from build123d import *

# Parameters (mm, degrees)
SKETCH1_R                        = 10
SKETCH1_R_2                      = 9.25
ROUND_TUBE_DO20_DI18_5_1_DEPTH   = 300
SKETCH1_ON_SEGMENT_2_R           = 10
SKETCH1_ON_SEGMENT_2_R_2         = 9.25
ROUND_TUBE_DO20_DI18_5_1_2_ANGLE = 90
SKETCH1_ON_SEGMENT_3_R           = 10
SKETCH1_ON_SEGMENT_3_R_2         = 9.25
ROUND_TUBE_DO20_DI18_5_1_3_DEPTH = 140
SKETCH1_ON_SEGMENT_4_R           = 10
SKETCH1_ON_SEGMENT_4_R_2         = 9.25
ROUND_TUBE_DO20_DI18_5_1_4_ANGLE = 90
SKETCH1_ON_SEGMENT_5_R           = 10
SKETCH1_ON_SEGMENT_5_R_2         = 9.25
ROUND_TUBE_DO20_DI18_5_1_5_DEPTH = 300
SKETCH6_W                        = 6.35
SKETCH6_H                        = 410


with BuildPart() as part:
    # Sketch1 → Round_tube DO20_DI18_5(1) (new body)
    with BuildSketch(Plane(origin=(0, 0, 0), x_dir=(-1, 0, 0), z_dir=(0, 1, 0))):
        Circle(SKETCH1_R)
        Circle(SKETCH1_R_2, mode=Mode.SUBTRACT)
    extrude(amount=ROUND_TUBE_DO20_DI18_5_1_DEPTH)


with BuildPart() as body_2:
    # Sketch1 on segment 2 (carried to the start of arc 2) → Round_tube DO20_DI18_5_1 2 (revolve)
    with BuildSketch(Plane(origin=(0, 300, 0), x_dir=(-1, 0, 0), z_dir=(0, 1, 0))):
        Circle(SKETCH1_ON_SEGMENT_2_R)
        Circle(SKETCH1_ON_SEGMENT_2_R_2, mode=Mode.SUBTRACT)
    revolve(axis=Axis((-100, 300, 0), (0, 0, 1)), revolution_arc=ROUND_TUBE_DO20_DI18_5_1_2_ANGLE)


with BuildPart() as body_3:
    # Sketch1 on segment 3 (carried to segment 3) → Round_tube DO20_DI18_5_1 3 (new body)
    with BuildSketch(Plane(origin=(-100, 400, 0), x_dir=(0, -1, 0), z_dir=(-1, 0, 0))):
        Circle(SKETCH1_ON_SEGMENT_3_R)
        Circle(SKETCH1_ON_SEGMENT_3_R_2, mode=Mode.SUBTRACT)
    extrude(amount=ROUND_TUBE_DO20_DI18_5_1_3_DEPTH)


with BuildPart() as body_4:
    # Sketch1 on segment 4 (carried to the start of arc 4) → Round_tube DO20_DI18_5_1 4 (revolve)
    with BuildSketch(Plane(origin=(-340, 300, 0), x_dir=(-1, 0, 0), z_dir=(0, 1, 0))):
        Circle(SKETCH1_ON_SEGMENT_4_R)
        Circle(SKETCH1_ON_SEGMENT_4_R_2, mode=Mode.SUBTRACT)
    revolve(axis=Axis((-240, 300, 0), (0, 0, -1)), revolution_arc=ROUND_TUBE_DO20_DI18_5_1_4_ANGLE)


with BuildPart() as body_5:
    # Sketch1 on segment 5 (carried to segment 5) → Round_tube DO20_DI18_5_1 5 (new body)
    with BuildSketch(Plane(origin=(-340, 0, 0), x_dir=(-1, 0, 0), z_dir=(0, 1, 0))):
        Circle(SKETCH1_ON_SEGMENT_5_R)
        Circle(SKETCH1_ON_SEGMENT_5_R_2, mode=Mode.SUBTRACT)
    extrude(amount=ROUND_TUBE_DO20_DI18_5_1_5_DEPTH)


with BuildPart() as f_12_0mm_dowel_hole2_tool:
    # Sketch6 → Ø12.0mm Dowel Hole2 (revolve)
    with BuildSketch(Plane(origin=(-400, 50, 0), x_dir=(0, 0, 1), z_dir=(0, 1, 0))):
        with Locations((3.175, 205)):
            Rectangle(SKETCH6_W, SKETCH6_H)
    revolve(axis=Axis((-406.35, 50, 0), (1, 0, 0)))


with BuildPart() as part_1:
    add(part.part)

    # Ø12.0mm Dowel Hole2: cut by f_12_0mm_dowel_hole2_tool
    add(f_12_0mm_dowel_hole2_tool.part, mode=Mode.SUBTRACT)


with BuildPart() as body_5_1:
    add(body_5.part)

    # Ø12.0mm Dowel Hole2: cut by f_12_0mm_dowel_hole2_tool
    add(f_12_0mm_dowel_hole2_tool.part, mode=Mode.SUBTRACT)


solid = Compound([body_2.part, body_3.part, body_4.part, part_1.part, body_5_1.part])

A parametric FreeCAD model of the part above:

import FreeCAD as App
import Part
import Sketcher

V = App.Vector


def add_polygon(sketch, points):
    """Adds a closed chain of lines whose ends are joined by coincident constraints."""
    first, n = sketch.GeometryCount, len(points)
    for a, b in zip(points, points[1:] + points[:1]):
        sketch.addGeometry(Part.LineSegment(App.Vector(*a, 0), App.Vector(*b, 0)), False)
    for i in range(n):
        sketch.addConstraint(Sketcher.Constraint("Coincident", first + i, 2, first + (i + 1) % n, 1))

doc = App.newDocument("Part")
body = doc.addObject("PartDesign::Body", "Body")

# Sketch on XZ plane
sketch1 = body.newObject("Sketcher::SketchObject", "Sketch")
sketch1.AttachmentSupport = (doc.getObject("XZ_Plane"), [""])
sketch1.MapMode = "FlatFace"
sketch1.addGeometry(Part.Circle(V(0, 0, 0), V(0, 0, 1), 10), False)
sketch1.addGeometry(Part.Circle(V(0, 0, 0), V(0, 0, 1), 9.25), False)
sketch1.addConstraint(Sketcher.Constraint("Coincident", 0, 3, -1, 1))
sketch1.addConstraint(Sketcher.Constraint("Coincident", 1, 3, -1, 1))
sketch1.addConstraint(Sketcher.Constraint("Diameter", 0, 20.0))
sketch1.addConstraint(Sketcher.Constraint("Diameter", 1, 18.5))
pad1 = body.newObject("PartDesign::Pad", "Pad")
pad1.Profile = sketch1
pad1.Length = 300
pad1.Reversed = True
body2 = doc.addObject("PartDesign::Body", "Body001")

# Sketch on XZ plane
sketch2 = body2.newObject("Sketcher::SketchObject", "Sketch001")
sketch2.AttachmentSupport = (doc.getObject("XZ_Plane001"), [""])
sketch2.MapMode = "FlatFace"
sketch2.AttachmentOffset = App.Placement(V(0, 0, -300), App.Rotation())
sketch2.addGeometry(Part.Circle(V(0, 0, 0), V(0, 0, 1), 10), False)
sketch2.addGeometry(Part.Circle(V(0, 0, 0), V(0, 0, 1), 9.25), False)
sketch2.addGeometry(Part.LineSegment(V(-100, 0, 0), V(-100, 10, 0)), True)  # axis
sketch2.addConstraint(Sketcher.Constraint("Vertical", 2))
sketch2.addConstraint(Sketcher.Constraint("Coincident", 0, 3, -1, 1))
sketch2.addConstraint(Sketcher.Constraint("Coincident", 1, 3, -1, 1))
sketch2.addConstraint(Sketcher.Constraint("PointOnObject", 2, 1, -1))
sketch2.addConstraint(Sketcher.Constraint("Diameter", 0, 20.0))
sketch2.addConstraint(Sketcher.Constraint("Diameter", 1, 18.5))
sketch2.addConstraint(Sketcher.Constraint("DistanceY", 2, 1, 2, 2, 10.0))
sketch2.addConstraint(Sketcher.Constraint("DistanceX", 2, 1, -1, 1, 100.0))
revolution = body2.newObject("PartDesign::Revolution", "Revolution")
revolution.Profile = sketch2
revolution.ReferenceAxis = (sketch2, ["Axis0"])
revolution.Angle = 90
body3 = doc.addObject("PartDesign::Body", "Body002")

# Sketch on YZ plane
sketch3 = body3.newObject("Sketcher::SketchObject", "Sketch002")
sketch3.AttachmentSupport = (doc.getObject("YZ_Plane002"), [""])
sketch3.MapMode = "FlatFace"
sketch3.AttachmentOffset = App.Placement(V(0, 0, -100), App.Rotation())
sketch3.addGeometry(Part.Circle(V(400, 0, 0), V(0, 0, 1), 10), False)
sketch3.addGeometry(Part.Circle(V(400, 0, 0), V(0, 0, 1), 9.25), False)
sketch3.addConstraint(Sketcher.Constraint("Coincident", 1, 3, 0, 3))
sketch3.addConstraint(Sketcher.Constraint("PointOnObject", 0, 3, -1))
sketch3.addConstraint(Sketcher.Constraint("Diameter", 0, 20.0))
sketch3.addConstraint(Sketcher.Constraint("Diameter", 1, 18.5))
sketch3.addConstraint(Sketcher.Constraint("DistanceX", -1, 1, 0, 3, 400.0))
pad2 = body3.newObject("PartDesign::Pad", "Pad001")
pad2.Profile = sketch3
pad2.Length = 140
pad2.Reversed = True
body4 = doc.addObject("PartDesign::Body", "Body003")

# Sketch on XZ plane
sketch4 = body4.newObject("Sketcher::SketchObject", "Sketch003")
sketch4.AttachmentSupport = (doc.getObject("XZ_Plane003"), [""])
sketch4.MapMode = "FlatFace"
sketch4.AttachmentOffset = App.Placement(V(0, 0, -300), App.Rotation())
sketch4.addGeometry(Part.Circle(V(-340, 0, 0), V(0, 0, 1), 10), False)
sketch4.addGeometry(Part.Circle(V(-340, 0, 0), V(0, 0, 1), 9.25), False)
sketch4.addGeometry(Part.LineSegment(V(-240, 0, 0), V(-240, -10, 0)), True)  # axis
sketch4.addConstraint(Sketcher.Constraint("Vertical", 2))
sketch4.addConstraint(Sketcher.Constraint("Coincident", 1, 3, 0, 3))
sketch4.addConstraint(Sketcher.Constraint("PointOnObject", 0, 3, -1))
sketch4.addConstraint(Sketcher.Constraint("PointOnObject", 2, 1, -1))
sketch4.addConstraint(Sketcher.Constraint("Diameter", 0, 20.0))
sketch4.addConstraint(Sketcher.Constraint("Diameter", 1, 18.5))
sketch4.addConstraint(Sketcher.Constraint("DistanceY", 2, 2, 2, 1, 10.0))
sketch4.addConstraint(Sketcher.Constraint("DistanceX", 0, 3, -1, 1, 340.0))
sketch4.addConstraint(Sketcher.Constraint("DistanceX", 2, 1, -1, 1, 240.0))
revolution2 = body4.newObject("PartDesign::Revolution", "Revolution001")
revolution2.Profile = sketch4
revolution2.ReferenceAxis = (sketch4, ["Axis0"])
revolution2.Angle = 90
body5 = doc.addObject("PartDesign::Body", "Body004")

# Sketch on XZ plane
sketch5 = body5.newObject("Sketcher::SketchObject", "Sketch004")
sketch5.AttachmentSupport = (doc.getObject("XZ_Plane004"), [""])
sketch5.MapMode = "FlatFace"
sketch5.addGeometry(Part.Circle(V(-340, 0, 0), V(0, 0, 1), 10), False)
sketch5.addGeometry(Part.Circle(V(-340, 0, 0), V(0, 0, 1), 9.25), False)
sketch5.addConstraint(Sketcher.Constraint("Coincident", 1, 3, 0, 3))
sketch5.addConstraint(Sketcher.Constraint("PointOnObject", 0, 3, -1))
sketch5.addConstraint(Sketcher.Constraint("Diameter", 0, 20.0))
sketch5.addConstraint(Sketcher.Constraint("Diameter", 1, 18.5))
sketch5.addConstraint(Sketcher.Constraint("DistanceX", 0, 3, -1, 1, 340.0))
pad3 = body5.newObject("PartDesign::Pad", "Pad002")
pad3.Profile = sketch5
pad3.Length = 300
pad3.Reversed = True
body6 = doc.addObject("PartDesign::Body", "Body005")

# Sketch on XZ plane
sketch6 = body6.newObject("Sketcher::SketchObject", "Sketch005")
sketch6.AttachmentSupport = (doc.getObject("XZ_Plane005"), [""])
sketch6.MapMode = "FlatFace"
sketch6.AttachmentOffset = App.Placement(V(0, 0, -50), App.Rotation())
add_polygon(sketch6, [(10, 0), (-400, 0), (-400, 6.35), (10, 6.35)])  # lines 0-3
sketch6.addConstraint(Sketcher.Constraint("Horizontal", 0))
sketch6.addConstraint(Sketcher.Constraint("Vertical", 1))
sketch6.addConstraint(Sketcher.Constraint("Horizontal", 2))
sketch6.addConstraint(Sketcher.Constraint("Vertical", 3))
sketch6.addConstraint(Sketcher.Constraint("PointOnObject", 0, 2, -1))
sketch6.addConstraint(Sketcher.Constraint("DistanceX", 0, 2, 0, 1, 410.0))
sketch6.addConstraint(Sketcher.Constraint("DistanceX", 0, 2, -1, 1, 400.0))
sketch6.addConstraint(Sketcher.Constraint("DistanceY", 1, 1, 1, 2, 6.35))
revolution3 = body6.newObject("PartDesign::Revolution", "Revolution002")
revolution3.Profile = sketch6
revolution3.ReferenceAxis = (sketch6, ["H_Axis"])
revolution3.Angle = 360
doc.recompute()

body7 = doc.addObject("PartDesign::Body", "Body006")
body7.BaseFeature = body6
boolean = body.newObject("PartDesign::Boolean", "Boolean")
boolean.Type = "Cut"
boolean.addObjects([body7])
doc.recompute()

boolean2 = body5.newObject("PartDesign::Boolean", "Boolean001")
boolean2.Type = "Cut"
boolean2.addObjects([body6])

doc.recompute()
